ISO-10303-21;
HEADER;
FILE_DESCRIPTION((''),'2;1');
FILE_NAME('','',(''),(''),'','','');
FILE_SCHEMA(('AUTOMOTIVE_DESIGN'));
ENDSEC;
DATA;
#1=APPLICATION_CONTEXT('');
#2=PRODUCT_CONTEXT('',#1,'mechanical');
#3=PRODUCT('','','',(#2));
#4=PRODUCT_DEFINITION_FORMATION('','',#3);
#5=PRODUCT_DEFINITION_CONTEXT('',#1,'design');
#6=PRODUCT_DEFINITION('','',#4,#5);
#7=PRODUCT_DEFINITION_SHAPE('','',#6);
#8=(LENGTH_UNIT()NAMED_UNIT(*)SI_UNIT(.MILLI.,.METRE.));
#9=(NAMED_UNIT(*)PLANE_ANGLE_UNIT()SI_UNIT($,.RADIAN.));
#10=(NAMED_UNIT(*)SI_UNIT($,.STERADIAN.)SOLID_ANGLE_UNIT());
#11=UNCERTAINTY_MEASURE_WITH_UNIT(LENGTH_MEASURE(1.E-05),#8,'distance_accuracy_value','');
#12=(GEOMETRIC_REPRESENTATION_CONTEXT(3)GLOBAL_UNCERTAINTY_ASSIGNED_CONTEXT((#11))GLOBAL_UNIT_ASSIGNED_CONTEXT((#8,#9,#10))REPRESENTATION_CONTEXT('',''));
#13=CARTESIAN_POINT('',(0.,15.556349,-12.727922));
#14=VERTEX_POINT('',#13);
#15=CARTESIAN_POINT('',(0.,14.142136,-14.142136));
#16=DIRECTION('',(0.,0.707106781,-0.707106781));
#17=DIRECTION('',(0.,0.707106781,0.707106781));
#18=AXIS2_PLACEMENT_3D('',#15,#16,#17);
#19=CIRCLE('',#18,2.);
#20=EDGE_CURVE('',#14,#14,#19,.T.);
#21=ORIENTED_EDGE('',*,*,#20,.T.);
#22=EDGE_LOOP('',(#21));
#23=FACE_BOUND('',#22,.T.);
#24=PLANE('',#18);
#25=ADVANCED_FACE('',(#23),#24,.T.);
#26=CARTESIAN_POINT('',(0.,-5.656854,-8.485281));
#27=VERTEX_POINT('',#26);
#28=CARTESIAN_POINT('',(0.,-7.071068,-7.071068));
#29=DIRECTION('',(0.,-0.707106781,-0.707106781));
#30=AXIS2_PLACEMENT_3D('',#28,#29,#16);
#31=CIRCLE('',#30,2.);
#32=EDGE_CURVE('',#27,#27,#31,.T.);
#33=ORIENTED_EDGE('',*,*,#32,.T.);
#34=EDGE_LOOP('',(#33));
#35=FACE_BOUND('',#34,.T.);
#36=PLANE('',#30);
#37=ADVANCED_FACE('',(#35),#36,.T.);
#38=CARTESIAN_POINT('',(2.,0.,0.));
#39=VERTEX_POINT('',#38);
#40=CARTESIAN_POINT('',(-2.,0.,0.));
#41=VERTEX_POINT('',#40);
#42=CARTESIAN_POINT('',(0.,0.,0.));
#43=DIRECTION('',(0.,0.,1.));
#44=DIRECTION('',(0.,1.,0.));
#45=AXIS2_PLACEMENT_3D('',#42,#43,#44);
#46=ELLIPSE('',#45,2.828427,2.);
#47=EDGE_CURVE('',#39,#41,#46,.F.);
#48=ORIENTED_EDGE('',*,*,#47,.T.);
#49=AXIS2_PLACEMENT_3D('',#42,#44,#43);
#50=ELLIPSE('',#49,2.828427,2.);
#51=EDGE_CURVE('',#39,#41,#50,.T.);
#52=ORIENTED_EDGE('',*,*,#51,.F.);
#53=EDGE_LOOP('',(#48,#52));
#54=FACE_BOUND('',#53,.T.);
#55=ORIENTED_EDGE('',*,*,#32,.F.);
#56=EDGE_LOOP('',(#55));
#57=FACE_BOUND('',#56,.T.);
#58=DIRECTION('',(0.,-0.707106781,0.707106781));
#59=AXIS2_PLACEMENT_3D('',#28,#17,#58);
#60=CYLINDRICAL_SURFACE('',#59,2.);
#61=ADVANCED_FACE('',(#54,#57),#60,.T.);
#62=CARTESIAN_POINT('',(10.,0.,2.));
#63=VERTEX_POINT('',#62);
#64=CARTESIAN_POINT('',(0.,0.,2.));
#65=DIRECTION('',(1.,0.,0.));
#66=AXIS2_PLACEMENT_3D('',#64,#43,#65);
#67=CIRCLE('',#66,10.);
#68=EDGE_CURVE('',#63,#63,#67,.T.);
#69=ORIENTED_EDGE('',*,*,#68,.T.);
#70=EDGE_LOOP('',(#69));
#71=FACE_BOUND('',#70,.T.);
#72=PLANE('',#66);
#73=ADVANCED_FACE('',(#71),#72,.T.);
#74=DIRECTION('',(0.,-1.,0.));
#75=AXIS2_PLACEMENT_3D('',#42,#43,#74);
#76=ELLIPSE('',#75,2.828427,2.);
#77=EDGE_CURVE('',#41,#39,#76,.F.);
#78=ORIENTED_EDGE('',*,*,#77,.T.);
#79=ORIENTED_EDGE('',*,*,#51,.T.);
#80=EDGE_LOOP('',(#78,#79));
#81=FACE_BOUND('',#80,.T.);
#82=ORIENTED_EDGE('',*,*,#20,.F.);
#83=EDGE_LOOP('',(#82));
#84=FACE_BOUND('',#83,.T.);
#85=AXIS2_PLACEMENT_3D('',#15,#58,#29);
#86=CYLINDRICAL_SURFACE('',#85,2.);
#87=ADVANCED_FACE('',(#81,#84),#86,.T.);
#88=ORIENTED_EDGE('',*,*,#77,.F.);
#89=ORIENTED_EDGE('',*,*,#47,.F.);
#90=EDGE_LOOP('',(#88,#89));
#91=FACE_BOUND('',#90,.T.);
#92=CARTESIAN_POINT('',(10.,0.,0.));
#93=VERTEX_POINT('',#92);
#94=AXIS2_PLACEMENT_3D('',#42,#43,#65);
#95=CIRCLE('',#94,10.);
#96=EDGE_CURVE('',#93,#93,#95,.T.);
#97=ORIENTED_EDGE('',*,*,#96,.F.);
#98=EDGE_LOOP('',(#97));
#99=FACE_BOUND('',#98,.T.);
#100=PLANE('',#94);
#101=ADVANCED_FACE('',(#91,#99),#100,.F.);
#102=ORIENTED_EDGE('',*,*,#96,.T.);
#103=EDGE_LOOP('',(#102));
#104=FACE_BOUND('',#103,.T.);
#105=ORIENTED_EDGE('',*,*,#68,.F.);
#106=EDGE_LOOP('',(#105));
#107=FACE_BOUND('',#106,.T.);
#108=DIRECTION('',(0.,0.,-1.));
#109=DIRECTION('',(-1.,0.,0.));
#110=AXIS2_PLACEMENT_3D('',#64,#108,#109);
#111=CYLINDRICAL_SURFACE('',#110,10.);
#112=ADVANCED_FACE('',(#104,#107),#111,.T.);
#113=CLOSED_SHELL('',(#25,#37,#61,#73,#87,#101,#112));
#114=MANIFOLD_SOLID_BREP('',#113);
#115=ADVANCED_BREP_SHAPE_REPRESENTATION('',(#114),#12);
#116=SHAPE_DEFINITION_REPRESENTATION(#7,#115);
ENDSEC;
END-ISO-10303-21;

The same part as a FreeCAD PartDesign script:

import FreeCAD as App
import Part
import Sketcher

doc = App.newDocument("Part")
body = doc.addObject("PartDesign::Body", "Body")

# Sketch on XY plane
sketch1 = body.newObject("Sketcher::SketchObject", "Sketch")
sketch1.AttachmentSupport = (doc.getObject("XY_Plane"), [""])
sketch1.MapMode = "FlatFace"
sketch1.addGeometry(Part.Circle(App.Vector(0, 0, 0), App.Vector(0, 0, 1), 10), False)
sketch1.addConstraint(Sketcher.Constraint("Coincident", 0, 3, -1, 1))
sketch1.addConstraint(Sketcher.Constraint("Diameter", 0, 20.0))
pad1 = body.newObject("PartDesign::Pad", "Pad")
pad1.Profile = sketch1
pad1.Length = 2

# Sketch on an angled plane
sketch2 = body.newObject("Sketcher::SketchObject", "Sketch001")
sketch2.Placement = App.Placement(App.Vector(0, 0, 0), App.Rotation(App.Vector(-1, 0, 0), App.Vector(0, 0.707106781, -0.707106781), App.Vector(0, -0.707106781, -0.707106781), "ZXY"))
sketch2.addGeometry(Part.Circle(App.Vector(0, 0, 0), App.Vector(0, 0, 1), 2), False)
sketch2.addConstraint(Sketcher.Constraint("Coincident", 0, 3, -1, 1))
sketch2.addConstraint(Sketcher.Constraint("Diameter", 0, 4.0))
pad2 = body.newObject("PartDesign::Pad", "Pad001")
pad2.Profile = sketch2
pad2.Length = 10

# Sketch on an angled plane
sketch3 = body.newObject("Sketcher::SketchObject", "Sketch002")
sketch3.Placement = App.Placement(App.Vector(0, 0, 0), App.Rotation(App.Vector(-1, 0, 0), App.Vector(0, 0.707106781, 0.707106781), App.Vector(0, 0.707106781, -0.707106781), "ZXY"))
sketch3.addGeometry(Part.Circle(App.Vector(0, 0, 0), App.Vector(0, 0, 1), 2), False)
sketch3.addConstraint(Sketcher.Constraint("Coincident", 0, 3, -1, 1))
sketch3.addConstraint(Sketcher.Constraint("Diameter", 0, 4.0))
pad3 = body.newObject("PartDesign::Pad", "Pad002")
pad3.Profile = sketch3
pad3.Length = 20

doc.recompute()
